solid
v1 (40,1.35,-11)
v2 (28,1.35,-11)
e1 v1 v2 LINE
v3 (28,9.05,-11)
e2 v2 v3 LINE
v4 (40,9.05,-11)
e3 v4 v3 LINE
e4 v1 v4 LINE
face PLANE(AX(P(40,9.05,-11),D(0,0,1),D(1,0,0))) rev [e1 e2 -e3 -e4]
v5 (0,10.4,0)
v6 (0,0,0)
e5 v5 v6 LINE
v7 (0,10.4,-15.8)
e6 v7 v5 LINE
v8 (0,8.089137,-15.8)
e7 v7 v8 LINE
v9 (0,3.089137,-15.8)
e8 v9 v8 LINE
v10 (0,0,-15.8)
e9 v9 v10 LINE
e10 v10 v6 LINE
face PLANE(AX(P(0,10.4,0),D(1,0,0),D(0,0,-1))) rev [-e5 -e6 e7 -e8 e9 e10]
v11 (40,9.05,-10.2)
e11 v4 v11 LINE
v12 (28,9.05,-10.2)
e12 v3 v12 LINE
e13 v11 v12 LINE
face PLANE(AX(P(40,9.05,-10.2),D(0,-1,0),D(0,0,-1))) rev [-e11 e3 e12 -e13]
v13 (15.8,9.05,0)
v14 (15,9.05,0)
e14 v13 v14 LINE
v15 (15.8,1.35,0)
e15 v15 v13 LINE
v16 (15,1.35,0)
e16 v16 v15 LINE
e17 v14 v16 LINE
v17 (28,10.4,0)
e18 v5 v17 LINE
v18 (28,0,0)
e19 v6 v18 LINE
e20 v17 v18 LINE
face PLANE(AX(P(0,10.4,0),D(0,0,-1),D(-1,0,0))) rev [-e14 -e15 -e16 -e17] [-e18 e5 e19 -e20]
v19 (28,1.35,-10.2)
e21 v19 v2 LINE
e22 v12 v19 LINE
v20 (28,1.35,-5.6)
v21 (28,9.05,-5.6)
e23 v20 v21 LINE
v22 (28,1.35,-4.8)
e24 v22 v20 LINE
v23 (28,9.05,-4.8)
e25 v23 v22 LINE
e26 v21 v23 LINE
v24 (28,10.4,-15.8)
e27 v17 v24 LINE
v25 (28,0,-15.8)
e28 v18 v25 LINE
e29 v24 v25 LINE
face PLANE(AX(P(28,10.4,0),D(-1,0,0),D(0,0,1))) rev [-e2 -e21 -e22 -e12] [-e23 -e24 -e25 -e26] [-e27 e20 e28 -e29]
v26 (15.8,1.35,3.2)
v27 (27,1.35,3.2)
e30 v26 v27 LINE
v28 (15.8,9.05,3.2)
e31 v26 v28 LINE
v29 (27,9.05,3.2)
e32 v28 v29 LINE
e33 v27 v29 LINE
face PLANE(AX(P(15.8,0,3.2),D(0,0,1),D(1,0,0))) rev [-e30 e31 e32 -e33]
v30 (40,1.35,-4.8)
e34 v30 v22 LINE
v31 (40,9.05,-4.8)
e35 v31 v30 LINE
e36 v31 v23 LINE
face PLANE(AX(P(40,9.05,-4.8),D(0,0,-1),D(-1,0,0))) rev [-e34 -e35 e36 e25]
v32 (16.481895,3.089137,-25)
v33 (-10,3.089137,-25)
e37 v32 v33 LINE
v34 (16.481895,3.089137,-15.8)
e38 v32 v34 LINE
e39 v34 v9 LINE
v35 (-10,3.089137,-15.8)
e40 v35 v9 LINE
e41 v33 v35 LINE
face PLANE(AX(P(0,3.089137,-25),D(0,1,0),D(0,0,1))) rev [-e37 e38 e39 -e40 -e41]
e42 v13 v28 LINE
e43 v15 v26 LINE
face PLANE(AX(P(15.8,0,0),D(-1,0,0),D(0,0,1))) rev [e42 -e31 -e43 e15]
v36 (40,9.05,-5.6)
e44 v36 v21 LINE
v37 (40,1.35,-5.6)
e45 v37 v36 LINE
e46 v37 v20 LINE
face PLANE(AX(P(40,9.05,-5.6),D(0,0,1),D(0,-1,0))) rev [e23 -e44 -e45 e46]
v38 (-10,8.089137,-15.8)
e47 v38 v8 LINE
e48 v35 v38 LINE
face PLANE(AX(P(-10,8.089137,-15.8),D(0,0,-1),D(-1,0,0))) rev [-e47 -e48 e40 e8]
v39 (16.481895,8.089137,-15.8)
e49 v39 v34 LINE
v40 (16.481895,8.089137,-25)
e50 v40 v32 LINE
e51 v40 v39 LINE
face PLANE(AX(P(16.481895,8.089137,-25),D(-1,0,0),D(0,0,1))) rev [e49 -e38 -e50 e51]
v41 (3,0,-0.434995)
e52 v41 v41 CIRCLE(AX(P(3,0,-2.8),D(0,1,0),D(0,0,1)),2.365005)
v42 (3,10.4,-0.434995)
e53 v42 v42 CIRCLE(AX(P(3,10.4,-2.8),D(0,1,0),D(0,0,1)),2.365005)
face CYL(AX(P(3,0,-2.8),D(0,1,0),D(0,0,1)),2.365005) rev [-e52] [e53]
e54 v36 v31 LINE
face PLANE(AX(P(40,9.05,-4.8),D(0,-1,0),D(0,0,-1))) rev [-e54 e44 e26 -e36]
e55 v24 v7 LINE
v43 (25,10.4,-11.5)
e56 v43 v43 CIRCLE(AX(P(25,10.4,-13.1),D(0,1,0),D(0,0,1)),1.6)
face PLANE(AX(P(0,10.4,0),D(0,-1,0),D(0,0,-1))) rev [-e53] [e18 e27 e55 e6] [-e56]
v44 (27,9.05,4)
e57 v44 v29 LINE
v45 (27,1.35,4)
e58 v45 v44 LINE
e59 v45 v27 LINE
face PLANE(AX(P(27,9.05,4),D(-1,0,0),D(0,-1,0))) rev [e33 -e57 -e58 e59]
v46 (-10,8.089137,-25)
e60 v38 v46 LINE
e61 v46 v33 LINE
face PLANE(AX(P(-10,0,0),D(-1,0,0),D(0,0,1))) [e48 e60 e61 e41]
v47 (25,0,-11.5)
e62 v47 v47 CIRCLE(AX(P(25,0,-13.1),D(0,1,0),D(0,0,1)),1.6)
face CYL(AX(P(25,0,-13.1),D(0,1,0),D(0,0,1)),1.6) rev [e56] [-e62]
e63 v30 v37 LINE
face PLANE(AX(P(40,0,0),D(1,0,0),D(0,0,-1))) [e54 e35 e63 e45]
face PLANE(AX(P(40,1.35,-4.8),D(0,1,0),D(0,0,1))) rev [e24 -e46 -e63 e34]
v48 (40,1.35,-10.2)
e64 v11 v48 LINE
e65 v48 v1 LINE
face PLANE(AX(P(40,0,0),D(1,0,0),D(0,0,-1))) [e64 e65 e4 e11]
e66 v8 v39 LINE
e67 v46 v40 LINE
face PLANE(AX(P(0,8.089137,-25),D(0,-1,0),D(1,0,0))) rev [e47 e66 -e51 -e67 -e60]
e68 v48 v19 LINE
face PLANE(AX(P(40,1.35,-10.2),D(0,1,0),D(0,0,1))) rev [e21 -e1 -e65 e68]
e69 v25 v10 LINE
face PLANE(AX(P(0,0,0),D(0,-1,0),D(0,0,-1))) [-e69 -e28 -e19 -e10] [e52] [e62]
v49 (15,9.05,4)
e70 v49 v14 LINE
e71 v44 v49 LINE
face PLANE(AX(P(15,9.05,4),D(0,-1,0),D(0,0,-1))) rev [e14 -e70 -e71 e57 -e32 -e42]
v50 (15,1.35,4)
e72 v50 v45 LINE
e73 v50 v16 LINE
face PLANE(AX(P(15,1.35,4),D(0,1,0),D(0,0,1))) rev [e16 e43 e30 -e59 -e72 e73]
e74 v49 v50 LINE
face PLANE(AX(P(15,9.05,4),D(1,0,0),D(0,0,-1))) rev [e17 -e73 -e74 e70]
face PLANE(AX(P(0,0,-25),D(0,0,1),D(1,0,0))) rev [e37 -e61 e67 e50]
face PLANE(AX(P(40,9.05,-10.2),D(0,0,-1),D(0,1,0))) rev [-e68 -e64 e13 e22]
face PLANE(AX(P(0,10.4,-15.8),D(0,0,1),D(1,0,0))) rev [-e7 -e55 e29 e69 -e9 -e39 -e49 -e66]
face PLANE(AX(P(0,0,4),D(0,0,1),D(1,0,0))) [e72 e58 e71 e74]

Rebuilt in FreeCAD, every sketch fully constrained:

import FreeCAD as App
import Part
import Sketcher

V = App.Vector


def add_polygon(sketch, points):
    """Adds a closed chain of lines whose ends are joined by coincident constraints."""
    first, n = sketch.GeometryCount, len(points)
    for a, b in zip(points, points[1:] + points[:1]):
        sketch.addGeometry(Part.LineSegment(App.Vector(*a, 0), App.Vector(*b, 0)), False)
    for i in range(n):
        sketch.addConstraint(Sketcher.Constraint("Coincident", first + i, 2, first + (i + 1) % n, 1))

doc = App.newDocument("Part")
body = doc.addObject("PartDesign::Body", "Body")

# Sketch on XZ plane
sketch1 = body.newObject("Sketcher::SketchObject", "Sketch")
sketch1.AttachmentSupport = (doc.getObject("XZ_Plane"), [""])
sketch1.MapMode = "FlatFace"
add_polygon(sketch1, [(0, -16), (0, 0), (28, 0), (28, -16)])  # lines 0-3
sketch1.addConstraint(Sketcher.Constraint("Vertical", 0))
sketch1.addConstraint(Sketcher.Constraint("Horizontal", 1))
sketch1.addConstraint(Sketcher.Constraint("Vertical", 2))
sketch1.addConstraint(Sketcher.Constraint("Horizontal", 3))
sketch1.addConstraint(Sketcher.Constraint("Coincident", 0, 2, -1, 1))
sketch1.addConstraint(Sketcher.Constraint("DistanceX", 1, 1, 1, 2, 28.0))
sketch1.addConstraint(Sketcher.Constraint("DistanceY", 0, 1, 0, 2, 15.8))
pad1 = body.newObject("PartDesign::Pad", "Pad")
pad1.Profile = sketch1
pad1.Length = 10.4
pad1.Reversed = True

# Sketch on YZ plane
sketch2 = body.newObject("Sketcher::SketchObject", "Sketch001")
sketch2.AttachmentSupport = (doc.getObject("YZ_Plane"), [""])
sketch2.MapMode = "FlatFace"
sketch2.AttachmentOffset = App.Placement(V(0, 0, 28), App.Rotation())
add_polygon(sketch2, [(9.1, -4.8), (1.4, -4.8), (1.4, -5.6), (9.1, -5.6)])  # lines 0-3
add_polygon(sketch2, [(9.1, -10.2), (1.4, -10.2), (1.4, -11), (9.1, -11)])  # lines 4-7
sketch2.addConstraint(Sketcher.Constraint("Horizontal", 0))
sketch2.addConstraint(Sketcher.Constraint("Vertical", 1))
sketch2.addConstraint(Sketcher.Constraint("Horizontal", 2))
sketch2.addConstraint(Sketcher.Constraint("Vertical", 3))
sketch2.addConstraint(Sketcher.Constraint("Horizontal", 4))
sketch2.addConstraint(Sketcher.Constraint("Vertical", 5))
sketch2.addConstraint(Sketcher.Constraint("Horizontal", 6))
sketch2.addConstraint(Sketcher.Constraint("Vertical", 7))
sketch2.addConstraint(Sketcher.Constraint("Vertical", 1, 2, 4, 2))
sketch2.addConstraint(Sketcher.Constraint("Vertical", 3, 2, 6, 2))
sketch2.addConstraint(Sketcher.Constraint("Equal", 3, 5))
sketch2.addConstraint(Sketcher.Constraint("DistanceX", 0, 2, 0, 1, 7.7))
sketch2.addConstraint(Sketcher.Constraint("DistanceY", 1, 2, 1, 1, 0.8))
sketch2.addConstraint(Sketcher.Constraint("DistanceY", 5, 2, -1, 1, 11.0))
sketch2.addConstraint(Sketcher.Constraint("DistanceY", 0, 2, -1, 1, 4.8))
sketch2.addConstraint(Sketcher.Constraint("DistanceX", -1, 1, 0, 2, 1.35))
pad2 = body.newObject("PartDesign::Pad", "Pad001")
pad2.Profile = sketch2
pad2.Length = 12

# Sketch on XY plane
sketch3 = body.newObject("Sketcher::SketchObject", "Sketch002")
sketch3.AttachmentSupport = (doc.getObject("XY_Plane"), [""])
sketch3.MapMode = "FlatFace"
add_polygon(sketch3, [(15, 9), (15, 1), (27, 1), (27, 9)])  # lines 0-3
sketch3.addConstraint(Sketcher.Constraint("Vertical", 0))
sketch3.addConstraint(Sketcher.Constraint("Horizontal", 1))
sketch3.addConstraint(Sketcher.Constraint("Vertical", 2))
sketch3.addConstraint(Sketcher.Constraint("Horizontal", 3))
sketch3.addConstraint(Sketcher.Constraint("DistanceX", 1, 1, 1, 2, 12.0))
sketch3.addConstraint(Sketcher.Constraint("DistanceY", 0, 2, 0, 1, 7.7))
sketch3.addConstraint(Sketcher.Constraint("DistanceX", -1, 1, 0, 2, 15.0))
sketch3.addConstraint(Sketcher.Constraint("DistanceY", -1, 1, 0, 2, 1.35))
pad3 = body.newObject("PartDesign::Pad", "Pad002")
pad3.Profile = sketch3
pad3.Length = 4

# Sketch on XZ plane
sketch4 = body.newObject("Sketcher::SketchObject", "Sketch003")
sketch4.AttachmentSupport = (doc.getObject("XZ_Plane"), [""])
sketch4.MapMode = "FlatFace"
sketch4.AttachmentOffset = App.Placement(V(0, 0, -9.05), App.Rotation())
add_polygon(sketch4, [(15.8, 0), (15.8, 3.2), (27, 3.2), (27, 0)])  # lines 0-3
sketch4.addConstraint(Sketcher.Constraint("Vertical", 0))
sketch4.addConstraint(Sketcher.Constraint("Horizontal", 1))
sketch4.addConstraint(Sketcher.Constraint("Vertical", 2))
sketch4.addConstraint(Sketcher.Constraint("Horizontal", 3))
sketch4.addConstraint(Sketcher.Constraint("PointOnObject", 2, 2, -1))
sketch4.addConstraint(Sketcher.Constraint("DistanceX", 1, 1, 1, 2, 11.2))
sketch4.addConstraint(Sketcher.Constraint("DistanceY", 0, 1, 0, 2, 3.2))
sketch4.addConstraint(Sketcher.Constraint("DistanceX", -1, 1, 1, 2, 27.0))
pocket1 = body.newObject("PartDesign::Pocket", "Pocket")
pocket1.Profile = sketch4
pocket1.Type = "ThroughAll"
pocket1.Reversed = True

# Sketch on XZ plane
sketch5 = body.newObject("Sketcher::SketchObject", "Sketch004")
sketch5.AttachmentSupport = (doc.getObject("XZ_Plane"), [""])
sketch5.MapMode = "FlatFace"
sketch5.AttachmentOffset = App.Placement(V(0, 0, -10.4), App.Rotation())
sketch5.addGeometry(Part.Circle(V(25, -13.1, 0), V(0, 0, 1), 1.6), False)
sketch5.addGeometry(Part.Circle(V(3, -2.8, 0), V(0, 0, 1), 2.4), False)
sketch5.addConstraint(Sketcher.Constraint("Diameter", 0, 3.2))
sketch5.addConstraint(Sketcher.Constraint("DistanceX", -1, 1, 0, 3, 25.0))
sketch5.addConstraint(Sketcher.Constraint("DistanceX", -1, 1, 1, 3, 3.0))
sketch5.addConstraint(Sketcher.Constraint("DistanceY", 0, 3, -1, 1, 13.1))
sketch5.addConstraint(Sketcher.Constraint("DistanceY", 1, 3, -1, 1, 2.8))
sketch5.addConstraint(Sketcher.Constraint("Diameter", 1, 4.73001))
pocket2 = body.newObject("PartDesign::Pocket", "Pocket001")
pocket2.Profile = sketch5
pocket2.Type = "ThroughAll"
pocket2.Reversed = True

# Sketch on XY plane
sketch6 = body.newObject("Sketcher::SketchObject", "Sketch005")
sketch6.AttachmentSupport = (doc.getObject("XY_Plane"), [""])
sketch6.MapMode = "FlatFace"
sketch6.AttachmentOffset = App.Placement(V(0, 0, -15.8), App.Rotation())
add_polygon(sketch6, [(16, 8), (16, 3), (0, 3), (0, 8)])  # lines 0-3
sketch6.addConstraint(Sketcher.Constraint("Vertical", 0))
sketch6.addConstraint(Sketcher.Constraint("Horizontal", 1))
sketch6.addConstraint(Sketcher.Constraint("Vertical", 2))
sketch6.addConstraint(Sketcher.Constraint("Horizontal", 3))
sketch6.addConstraint(Sketcher.Constraint("PointOnObject", 1, 2, -2))
sketch6.addConstraint(Sketcher.Constraint("DistanceY", 0, 2, 0, 1, 5.0))
sketch6.addConstraint(Sketcher.Constraint("DistanceX", 1, 2, 1, 1, 16.481895))
sketch6.addConstraint(Sketcher.Constraint("DistanceY", -1, 1, 0, 2, 3.089137))
pad4 = body.newObject("PartDesign::Pad", "Pad003")
pad4.Profile = sketch6
pad4.Length = 9.2
pad4.Reversed = True

# Sketch on YZ plane
sketch7 = body.newObject("Sketcher::SketchObject", "Sketch006")
sketch7.AttachmentSupport = (doc.getObject("YZ_Plane"), [""])
sketch7.MapMode = "FlatFace"
add_polygon(sketch7, [(8, -25), (3, -25), (3, -16), (8, -16)])  # lines 0-3
sketch7.addConstraint(Sketcher.Constraint("Horizontal", 0))
sketch7.addConstraint(Sketcher.Constraint("Vertical", 1))
sketch7.addConstraint(Sketcher.Constraint("Horizontal", 2))
sketch7.addConstraint(Sketcher.Constraint("Vertical", 3))
sketch7.addConstraint(Sketcher.Constraint("DistanceX", 0, 2, 0, 1, 5.0))
sketch7.addConstraint(Sketcher.Constraint("DistanceY", 1, 1, 1, 2, 9.2))
sketch7.addConstraint(Sketcher.Constraint("DistanceY", 0, 2, -1, 1, 25.0))
sketch7.addConstraint(Sketcher.Constraint("DistanceX", -1, 1, 0, 2, 3.089137))
pad5 = body.newObject("PartDesign::Pad", "Pad004")
pad5.Profile = sketch7
pad5.Length = 10
pad5.Reversed = True

doc.recompute()
